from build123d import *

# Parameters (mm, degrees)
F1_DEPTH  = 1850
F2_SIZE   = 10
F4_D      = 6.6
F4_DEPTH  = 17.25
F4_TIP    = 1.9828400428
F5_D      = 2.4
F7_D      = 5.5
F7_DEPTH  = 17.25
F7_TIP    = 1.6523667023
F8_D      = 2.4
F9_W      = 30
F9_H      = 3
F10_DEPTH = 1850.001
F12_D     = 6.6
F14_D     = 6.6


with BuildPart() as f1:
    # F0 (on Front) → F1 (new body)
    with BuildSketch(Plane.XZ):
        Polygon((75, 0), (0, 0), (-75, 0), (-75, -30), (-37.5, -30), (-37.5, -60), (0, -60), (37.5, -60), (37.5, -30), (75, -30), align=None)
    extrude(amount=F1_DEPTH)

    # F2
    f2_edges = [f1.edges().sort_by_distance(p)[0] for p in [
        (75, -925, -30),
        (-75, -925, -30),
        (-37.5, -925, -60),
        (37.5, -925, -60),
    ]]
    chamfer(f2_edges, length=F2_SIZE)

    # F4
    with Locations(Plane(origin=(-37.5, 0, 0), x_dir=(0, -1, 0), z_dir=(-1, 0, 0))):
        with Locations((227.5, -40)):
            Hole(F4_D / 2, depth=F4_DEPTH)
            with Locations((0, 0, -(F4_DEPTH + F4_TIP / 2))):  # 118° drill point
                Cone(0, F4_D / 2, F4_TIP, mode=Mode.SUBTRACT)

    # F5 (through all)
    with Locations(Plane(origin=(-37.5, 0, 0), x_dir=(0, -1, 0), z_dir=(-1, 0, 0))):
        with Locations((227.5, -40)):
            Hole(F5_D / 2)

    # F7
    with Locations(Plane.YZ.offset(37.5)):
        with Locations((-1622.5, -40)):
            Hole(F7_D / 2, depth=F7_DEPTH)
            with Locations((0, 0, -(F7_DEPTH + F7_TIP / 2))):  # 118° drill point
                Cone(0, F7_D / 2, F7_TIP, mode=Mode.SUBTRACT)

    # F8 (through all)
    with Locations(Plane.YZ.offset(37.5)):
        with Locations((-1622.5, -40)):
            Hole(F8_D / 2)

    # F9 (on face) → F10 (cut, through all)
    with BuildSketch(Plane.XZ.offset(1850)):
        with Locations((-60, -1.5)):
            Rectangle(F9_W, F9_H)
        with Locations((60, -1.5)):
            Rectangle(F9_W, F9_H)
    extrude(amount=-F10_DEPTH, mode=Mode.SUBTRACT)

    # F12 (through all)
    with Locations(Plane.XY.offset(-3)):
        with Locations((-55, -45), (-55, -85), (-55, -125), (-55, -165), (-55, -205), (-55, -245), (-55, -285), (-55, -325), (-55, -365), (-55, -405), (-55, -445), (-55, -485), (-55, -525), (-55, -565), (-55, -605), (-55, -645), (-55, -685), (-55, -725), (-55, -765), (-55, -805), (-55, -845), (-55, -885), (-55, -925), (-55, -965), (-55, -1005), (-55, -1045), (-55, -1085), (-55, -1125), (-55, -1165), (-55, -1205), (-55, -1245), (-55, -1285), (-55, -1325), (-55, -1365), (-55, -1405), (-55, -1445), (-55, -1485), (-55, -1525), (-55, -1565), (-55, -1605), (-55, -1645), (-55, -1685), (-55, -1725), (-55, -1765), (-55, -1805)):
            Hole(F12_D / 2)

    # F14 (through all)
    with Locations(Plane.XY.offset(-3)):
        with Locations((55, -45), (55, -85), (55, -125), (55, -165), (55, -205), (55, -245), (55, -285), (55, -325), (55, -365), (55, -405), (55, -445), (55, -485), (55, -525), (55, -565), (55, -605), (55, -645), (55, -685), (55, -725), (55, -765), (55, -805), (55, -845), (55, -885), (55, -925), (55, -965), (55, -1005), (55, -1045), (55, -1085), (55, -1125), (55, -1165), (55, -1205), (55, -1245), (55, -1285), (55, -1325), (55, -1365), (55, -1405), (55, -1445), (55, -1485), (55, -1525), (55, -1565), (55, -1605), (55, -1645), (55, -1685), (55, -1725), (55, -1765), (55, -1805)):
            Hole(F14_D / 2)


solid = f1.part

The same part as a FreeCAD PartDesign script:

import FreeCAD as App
import Part
import Sketcher

V = App.Vector


def edges_at(feature, points):
    """Names of the edges that pass closest to the given points."""
    edges = feature.Shape.Edges
    near = lambda p: min(range(len(edges)), key=lambda i: edges[i].distToShape(Part.Vertex(*p))[0])
    return sorted({f"Edge{near(p) + 1}" for p in points})

doc = App.newDocument("Part")
params = doc.addObject("Spreadsheet::Sheet", "Params")
for row, (alias, value) in enumerate([
    ("sketch1_width", "150 mm"),
    ("sketch1_width2", "75 mm"),
    ("sketch1_height", "30 mm"),
    ("pad1_length", "1850 mm"),
    ("chamfer_size", "10 mm"),
    ("sketch2_diameter", "6.6 mm"),
    ("hole_diameter", "6.6 mm"),
    ("hole_depth", "17.25 mm"),
    ("sketch3_diameter", "2.4 mm"),
    ("hole2_diameter", "2.4 mm"),
    ("sketch4_diameter", "5.5 mm"),
    ("hole3_diameter", "5.5 mm"),
    ("hole3_depth", "17.25 mm"),
    ("sketch5_diameter", "2.4 mm"),
    ("hole4_diameter", "2.4 mm"),
    ("sketch6_width", "30 mm"),
    ("sketch6_height", "3 mm"),
    ("sketch7_diameter", "6.6 mm"),
    ("hole5_diameter", "6.6 mm"),
    ("sketch8_diameter", "6.6 mm"),
    ("hole6_diameter", "6.6 mm"),
], start=1):
    params.set(f"A{row}", alias)
    params.set(f"B{row}", "=" + value)
    params.setAlias(f"B{row}", alias)

body = doc.addObject("PartDesign::Body", "Body")

# Sketch on XZ plane
sketch1 = body.newObject("Sketcher::SketchObject", "Sketch")
sketch1.AttachmentSupport = (doc.getObject("XZ_Plane"), [""])
sketch1.MapMode = "FlatFace"
sketch1.addGeometry(Part.LineSegment(V(75, 0, 0), V(-75, 0, 0)), False)
sketch1.addGeometry(Part.LineSegment(V(-75, 0, 0), V(-75, -30, 0)), False)
sketch1.addGeometry(Part.LineSegment(V(-75, -30, 0), V(-37.5, -30, 0)), False)
sketch1.addGeometry(Part.LineSegment(V(-37.5, -30, 0), V(-37.5, -60, 0)), False)
sketch1.addGeometry(Part.LineSegment(V(-37.5, -60, 0), V(37.5, -60, 0)), False)
sketch1.addGeometry(Part.LineSegment(V(37.5, -60, 0), V(37.5, -30, 0)), False)
sketch1.addGeometry(Part.LineSegment(V(37.5, -30, 0), V(75, -30, 0)), False)
sketch1.addGeometry(Part.LineSegment(V(75, -30, 0), V(75, 0, 0)), False)
sketch1.addConstraint(Sketcher.Constraint("Coincident", 0, 2, 1, 1))
sketch1.addConstraint(Sketcher.Constraint("Coincident", 1, 2, 2, 1))
sketch1.addConstraint(Sketcher.Constraint("Coincident", 2, 2, 3, 1))
sketch1.addConstraint(Sketcher.Constraint("Coincident", 3, 2, 4, 1))
sketch1.addConstraint(Sketcher.Constraint("Coincident", 4, 2, 5, 1))
sketch1.addConstraint(Sketcher.Constraint("Coincident", 5, 2, 6, 1))
sketch1.addConstraint(Sketcher.Constraint("Coincident", 6, 2, 7, 1))
sketch1.addConstraint(Sketcher.Constraint("Coincident", 7, 2, 0, 1))
sketch1.addConstraint(Sketcher.Constraint("Horizontal", 0))
sketch1.addConstraint(Sketcher.Constraint("Vertical", 1))
sketch1.addConstraint(Sketcher.Constraint("Horizontal", 2))
sketch1.addConstraint(Sketcher.Constraint("Vertical", 3))
sketch1.addConstraint(Sketcher.Constraint("Horizontal", 4))
sketch1.addConstraint(Sketcher.Constraint("Vertical", 5))
sketch1.addConstraint(Sketcher.Constraint("Horizontal", 6))
sketch1.addConstraint(Sketcher.Constraint("Vertical", 7))
sketch1.addConstraint(Sketcher.Constraint("Symmetric", 0, 2, 7, 2, -1, 1))
sketch1.addConstraint(Sketcher.Constraint("Symmetric", 2, 2, 5, 2, -2))
sketch1.addConstraint(Sketcher.Constraint("Equal", 1, 3))
sketch1.addConstraint(Sketcher.Constraint("DistanceX", 0, 2, 0, 1, 150.0))
sketch1.addConstraint(Sketcher.Constraint("DistanceX", 4, 1, 4, 2, 75.0))
sketch1.addConstraint(Sketcher.Constraint("DistanceY", 1, 2, 1, 1, 30.0))
sketch1.setExpression("Constraints[19]", "Params.sketch1_width")
sketch1.setExpression("Constraints[20]", "Params.sketch1_width2")
sketch1.setExpression("Constraints[21]", "Params.sketch1_height")
pad1 = body.newObject("PartDesign::Pad", "Pad")
pad1.Profile = sketch1
pad1.setExpression("Length", "Params.pad1_length")
doc.recompute()

chamfer = body.newObject("PartDesign::Chamfer", "Chamfer")
chamfer.Base = (pad1, edges_at(pad1, [
    (75, -925, -30),
    (-75, -925, -30),
    (-37.5, -925, -60),
    (37.5, -925, -60),
]))
chamfer.setExpression("Size", "Params.chamfer_size")

# Sketch on YZ plane
sketch2 = body.newObject("Sketcher::SketchObject", "Sketch001")
sketch2.AttachmentSupport = (doc.getObject("YZ_Plane"), [""])
sketch2.MapMode = "FlatFace"
sketch2.AttachmentOffset = App.Placement(V(0, 0, -37.5), App.Rotation())
sketch2.addGeometry(Part.Circle(V(-227.5, -40, 0), V(0, 0, 1), 3.3), False)
sketch2.addConstraint(Sketcher.Constraint("Diameter", 0, 6.6))
sketch2.addConstraint(Sketcher.Constraint("DistanceY", 0, 3, -1, 1, 40.0))
sketch2.addConstraint(Sketcher.Constraint("DistanceX", 0, 3, -1, 1, 227.5))
sketch2.setExpression("Constraints[0]", "Params.sketch2_diameter")
doc.recompute()
hole = body.newObject("PartDesign::Hole", "Hole")
hole.Profile = sketch2
hole.ThreadType = "None"
hole.setExpression("Diameter", "Params.hole_diameter")
hole.DepthType = "Dimension"
hole.setExpression("Depth", "Params.hole_depth")
hole.DrillPoint = "Angled"
hole.DrillPointAngle = 118
hole.Reversed = True

# Sketch on YZ plane
sketch3 = body.newObject("Sketcher::SketchObject", "Sketch002")
sketch3.AttachmentSupport = (doc.getObject("YZ_Plane"), [""])
sketch3.MapMode = "FlatFace"
sketch3.AttachmentOffset = App.Placement(V(0, 0, -37.5), App.Rotation())
sketch3.addGeometry(Part.Circle(V(-227.5, -40, 0), V(0, 0, 1), 1.2), False)
sketch3.addConstraint(Sketcher.Constraint("Diameter", 0, 2.4))
sketch3.addConstraint(Sketcher.Constraint("DistanceY", 0, 3, -1, 1, 40.0))
sketch3.addConstraint(Sketcher.Constraint("DistanceX", 0, 3, -1, 1, 227.5))
sketch3.setExpression("Constraints[0]", "Params.sketch3_diameter")
doc.recompute()
hole2 = body.newObject("PartDesign::Hole", "Hole001")
hole2.Profile = sketch3
hole2.ThreadType = "None"
hole2.setExpression("Diameter", "Params.hole2_diameter")
hole2.DepthType = "ThroughAll"
hole2.Reversed = True

# Sketch on YZ plane
sketch4 = body.newObject("Sketcher::SketchObject", "Sketch003")
sketch4.AttachmentSupport = (doc.getObject("YZ_Plane"), [""])
sketch4.MapMode = "FlatFace"
sketch4.AttachmentOffset = App.Placement(V(0, 0, 37.5), App.Rotation())
sketch4.addGeometry(Part.Circle(V(-1622.5, -40, 0), V(0, 0, 1), 2.75), False)
sketch4.addConstraint(Sketcher.Constraint("Diameter", 0, 5.5))
sketch4.addConstraint(Sketcher.Constraint("DistanceY", 0, 3, -1, 1, 40.0))
sketch4.addConstraint(Sketcher.Constraint("DistanceX", 0, 3, -1, 1, 1622.5))
sketch4.setExpression("Constraints[0]", "Params.sketch4_diameter")
doc.recompute()
hole3 = body.newObject("PartDesign::Hole", "Hole002")
hole3.Profile = sketch4
hole3.ThreadType = "None"
hole3.setExpression("Diameter", "Params.hole3_diameter")
hole3.DepthType = "Dimension"
hole3.setExpression("Depth", "Params.hole3_depth")
hole3.DrillPoint = "Angled"
hole3.DrillPointAngle = 118

# Sketch on YZ plane
sketch5 = body.newObject("Sketcher::SketchObject", "Sketch004")
sketch5.AttachmentSupport = (doc.getObject("YZ_Plane"), [""])
sketch5.MapMode = "FlatFace"
sketch5.AttachmentOffset = App.Placement(V(0, 0, 37.5), App.Rotation())
sketch5.addGeometry(Part.Circle(V(-1622.5, -40, 0), V(0, 0, 1), 1.2), False)
sketch5.addConstraint(Sketcher.Constraint("Diameter", 0, 2.4))
sketch5.addConstraint(Sketcher.Constraint("DistanceY", 0, 3, -1, 1, 40.0))
sketch5.addConstraint(Sketcher.Constraint("DistanceX", 0, 3, -1, 1, 1622.5))
sketch5.setExpression("Constraints[0]", "Params.sketch5_diameter")
doc.recompute()
hole4 = body.newObject("PartDesign::Hole", "Hole003")
hole4.Profile = sketch5
hole4.ThreadType = "None"
hole4.setExpression("Diameter", "Params.hole4_diameter")
hole4.DepthType = "ThroughAll"

# Sketch on XZ plane
sketch6 = body.newObject("Sketcher::SketchObject", "Sketch005")
sketch6.AttachmentSupport = (doc.getObject("XZ_Plane"), [""])
sketch6.MapMode = "FlatFace"
sketch6.AttachmentOffset = App.Placement(V(0, 0, 1850), App.Rotation())
sketch6.addGeometry(Part.LineSegment(V(-75, 0, 0), V(-75, -3, 0)), False)
sketch6.addGeometry(Part.LineSegment(V(-75, -3, 0), V(-45, -3, 0)), False)
sketch6.addGeometry(Part.LineSegment(V(-45, -3, 0), V(-45, 0, 0)), False)
sketch6.addGeometry(Part.LineSegment(V(-45, 0, 0), V(-75, 0, 0)), False)
sketch6.addGeometry(Part.LineSegment(V(45, 0, 0), V(45, -3, 0)), False)
sketch6.addGeometry(Part.LineSegment(V(45, -3, 0), V(75, -3, 0)), False)
sketch6.addGeometry(Part.LineSegment(V(75, -3, 0), V(75, 0, 0)), False)
sketch6.addGeometry(Part.LineSegment(V(75, 0, 0), V(45, 0, 0)), False)
sketch6.addConstraint(Sketcher.Constraint("Coincident", 0, 2, 1, 1))
sketch6.addConstraint(Sketcher.Constraint("Coincident", 1, 2, 2, 1))
sketch6.addConstraint(Sketcher.Constraint("Coincident", 2, 2, 3, 1))
sketch6.addConstraint(Sketcher.Constraint("Coincident", 3, 2, 0, 1))
sketch6.addConstraint(Sketcher.Constraint("Coincident", 4, 2, 5, 1))
sketch6.addConstraint(Sketcher.Constraint("Coincident", 5, 2, 6, 1))
sketch6.addConstraint(Sketcher.Constraint("Coincident", 6, 2, 7, 1))
sketch6.addConstraint(Sketcher.Constraint("Coincident", 7, 2, 4, 1))
sketch6.addConstraint(Sketcher.Constraint("Vertical", 0))
sketch6.addConstraint(Sketcher.Constraint("Horizontal", 1))
sketch6.addConstraint(Sketcher.Constraint("Vertical", 2))
sketch6.addConstraint(Sketcher.Constraint("Horizontal", 3))
sketch6.addConstraint(Sketcher.Constraint("Vertical", 4))
sketch6.addConstraint(Sketcher.Constraint("Horizontal", 5))
sketch6.addConstraint(Sketcher.Constraint("Vertical", 6))
sketch6.addConstraint(Sketcher.Constraint("Horizontal", 7))
sketch6.addConstraint(Sketcher.Constraint("Symmetric", 3, 2, 6, 2, -1, 1))
sketch6.addConstraint(Sketcher.Constraint("Symmetric", 1, 2, 4, 2, -2))
sketch6.addConstraint(Sketcher.Constraint("PointOnObject", 2, 2, -1))
sketch6.addConstraint(Sketcher.Constraint("DistanceX", 1, 1, 1, 2, 30.0))
sketch6.addConstraint(Sketcher.Constraint("DistanceY", 0, 2, 0, 1, 3.0))
sketch6.addConstraint(Sketcher.Constraint("DistanceX", 0, 2, -1, 1, 75.0))
sketch6.setExpression("Constraints[19]", "Params.sketch6_width")
sketch6.setExpression("Constraints[20]", "Params.sketch6_height")
pocket1 = body.newObject("PartDesign::Pocket", "Pocket")
pocket1.Profile = sketch6
pocket1.Type = "ThroughAll"

# Sketch on XY plane
sketch7 = body.newObject("Sketcher::SketchObject", "Sketch006")
sketch7.AttachmentSupport = (doc.getObject("XY_Plane"), [""])
sketch7.MapMode = "FlatFace"
sketch7.AttachmentOffset = App.Placement(V(0, 0, -3), App.Rotation())
sketch7.addGeometry(Part.Circle(V(-55, -45, 0), V(0, 0, 1), 3.3), False)
sketch7.addGeometry(Part.Circle(V(-55, -85, 0), V(0, 0, 1), 3.3), False)
sketch7.addGeometry(Part.Circle(V(-55, -125, 0), V(0, 0, 1), 3.3), False)
sketch7.addGeometry(Part.Circle(V(-55, -165, 0), V(0, 0, 1), 3.3), False)
sketch7.addGeometry(Part.Circle(V(-55, -205, 0), V(0, 0, 1), 3.3), False)
sketch7.addGeometry(Part.Circle(V(-55, -245, 0), V(0, 0, 1), 3.3), False)
sketch7.addGeometry(Part.Circle(V(-55, -285, 0), V(0, 0, 1), 3.3), False)
sketch7.addGeometry(Part.Circle(V(-55, -325, 0), V(0, 0, 1), 3.3), False)
sketch7.addGeometry(Part.Circle(V(-55, -365, 0), V(0, 0, 1), 3.3), False)
sketch7.addGeometry(Part.Circle(V(-55, -405, 0), V(0, 0, 1), 3.3), False)
sketch7.addGeometry(Part.Circle(V(-55, -445, 0), V(0, 0, 1), 3.3), False)
sketch7.addGeometry(Part.Circle(V(-55, -485, 0), V(0, 0, 1), 3.3), False)
sketch7.addGeometry(Part.Circle(V(-55, -525, 0), V(0, 0, 1), 3.3), False)
sketch7.addGeometry(Part.Circle(V(-55, -565, 0), V(0, 0, 1), 3.3), False)
sketch7.addGeometry(Part.Circle(V(-55, -605, 0), V(0, 0, 1), 3.3), False)
sketch7.addGeometry(Part.Circle(V(-55, -645, 0), V(0, 0, 1), 3.3), False)
sketch7.addGeometry(Part.Circle(V(-55, -685, 0), V(0, 0, 1), 3.3), False)
sketch7.addGeometry(Part.Circle(V(-55, -725, 0), V(0, 0, 1), 3.3), False)
sketch7.addGeometry(Part.Circle(V(-55, -765, 0), V(0, 0, 1), 3.3), False)
sketch7.addGeometry(Part.Circle(V(-55, -805, 0), V(0, 0, 1), 3.3), False)
sketch7.addGeometry(Part.Circle(V(-55, -845, 0), V(0, 0, 1), 3.3), False)
sketch7.addGeometry(Part.Circle(V(-55, -885, 0), V(0, 0, 1), 3.3), False)
sketch7.addGeometry(Part.Circle(V(-55, -925, 0), V(0, 0, 1), 3.3), False)
sketch7.addGeometry(Part.Circle(V(-55, -965, 0), V(0, 0, 1), 3.3), False)
sketch7.addGeometry(Part.Circle(V(-55, -1005, 0), V(0, 0, 1), 3.3), False)
sketch7.addGeometry(Part.Circle(V(-55, -1045, 0), V(0, 0, 1), 3.3), False)
sketch7.addGeometry(Part.Circle(V(-55, -1085, 0), V(0, 0, 1), 3.3), False)
sketch7.addGeometry(Part.Circle(V(-55, -1125, 0), V(0, 0, 1), 3.3), False)
sketch7.addGeometry(Part.Circle(V(-55, -1165, 0), V(0, 0, 1), 3.3), False)
sketch7.addGeometry(Part.Circle(V(-55, -1205, 0), V(0, 0, 1), 3.3), False)
sketch7.addGeometry(Part.Circle(V(-55, -1245, 0), V(0, 0, 1), 3.3), False)
sketch7.addGeometry(Part.Circle(V(-55, -1285, 0), V(0, 0, 1), 3.3), False)
sketch7.addGeometry(Part.Circle(V(-55, -1325, 0), V(0, 0, 1), 3.3), False)
sketch7.addGeometry(Part.Circle(V(-55, -1365, 0), V(0, 0, 1), 3.3), False)
sketch7.addGeometry(Part.Circle(V(-55, -1405, 0), V(0, 0, 1), 3.3), False)
sketch7.addGeometry(Part.Circle(V(-55, -1445, 0), V(0, 0, 1), 3.3), False)
sketch7.addGeometry(Part.Circle(V(-55, -1485, 0), V(0, 0, 1), 3.3), False)
sketch7.addGeometry(Part.Circle(V(-55, -1525, 0), V(0, 0, 1), 3.3), False)
sketch7.addGeometry(Part.Circle(V(-55, -1565, 0), V(0, 0, 1), 3.3), False)
sketch7.addGeometry(Part.Circle(V(-55, -1605, 0), V(0, 0, 1), 3.3), False)
sketch7.addGeometry(Part.Circle(V(-55, -1645, 0), V(0, 0, 1), 3.3), False)
sketch7.addGeometry(Part.Circle(V(-55, -1685, 0), V(0, 0, 1), 3.3), False)
sketch7.addGeometry(Part.Circle(V(-55, -1725, 0), V(0, 0, 1), 3.3), False)
sketch7.addGeometry(Part.Circle(V(-55, -1765, 0), V(0, 0, 1), 3.3), False)
sketch7.addGeometry(Part.Circle(V(-55, -1805, 0), V(0, 0, 1), 3.3), False)
sketch7.addConstraint(Sketcher.Constraint("Equal", 0, 1))
sketch7.addConstraint(Sketcher.Constraint("Equal", 1, 2))
sketch7.addConstraint(Sketcher.Constraint("Equal", 2, 3))
sketch7.addConstraint(Sketcher.Constraint("Equal", 3, 4))
sketch7.addConstraint(Sketcher.Constraint("Equal", 4, 5))
sketch7.addConstraint(Sketcher.Constraint("Equal", 5, 6))
sketch7.addConstraint(Sketcher.Constraint("Equal", 6, 7))
sketch7.addConstraint(Sketcher.Constraint("Equal", 7, 8))
sketch7.addConstraint(Sketcher.Constraint("Equal", 8, 9))
sketch7.addConstraint(Sketcher.Constraint("Equal", 9, 10))
sketch7.addConstraint(Sketcher.Constraint("Equal", 10, 11))
sketch7.addConstraint(Sketcher.Constraint("Equal", 11, 12))
sketch7.addConstraint(Sketcher.Constraint("Equal", 12, 13))
sketch7.addConstraint(Sketcher.Constraint("Equal", 13, 14))
sketch7.addConstraint(Sketcher.Constraint("Equal", 14, 15))
sketch7.addConstraint(Sketcher.Constraint("Equal", 15, 16))
sketch7.addConstraint(Sketcher.Constraint("Equal", 16, 17))
sketch7.addConstraint(Sketcher.Constraint("Equal", 17, 18))
sketch7.addConstraint(Sketcher.Constraint("Equal", 18, 19))
sketch7.addConstraint(Sketcher.Constraint("Equal", 19, 20))
sketch7.addConstraint(Sketcher.Constraint("Equal", 20, 21))
sketch7.addConstraint(Sketcher.Constraint("Equal", 21, 22))
sketch7.addConstraint(Sketcher.Constraint("Equal", 22, 23))
sketch7.addConstraint(Sketcher.Constraint("Equal", 23, 24))
sketch7.addConstraint(Sketcher.Constraint("Equal", 24, 25))
sketch7.addConstraint(Sketcher.Constraint("Equal", 25, 26))
sketch7.addConstraint(Sketcher.Constraint("Equal", 26, 27))
sketch7.addConstraint(Sketcher.Constraint("Equal", 27, 28))
sketch7.addConstraint(Sketcher.Constraint("Equal", 28, 29))
sketch7.addConstraint(Sketcher.Constraint("Equal", 29, 30))
sketch7.addConstraint(Sketcher.Constraint("Equal", 30, 31))
sketch7.addConstraint(Sketcher.Constraint("Equal", 31, 32))
sketch7.addConstraint(Sketcher.Constraint("Equal", 32, 33))
sketch7.addConstraint(Sketcher.Constraint("Equal", 33, 34))
sketch7.addConstraint(Sketcher.Constraint("Equal", 34, 35))
sketch7.addConstraint(Sketcher.Constraint("Equal", 35, 36))
sketch7.addConstraint(Sketcher.Constraint("Equal", 36, 37))
sketch7.addConstraint(Sketcher.Constraint("Equal", 37, 38))
sketch7.addConstraint(Sketcher.Constraint("Equal", 38, 39))
sketch7.addConstraint(Sketcher.Constraint("Equal", 39, 40))
sketch7.addConstraint(Sketcher.Constraint("Equal", 40, 41))
sketch7.addConstraint(Sketcher.Constraint("Equal", 41, 42))
sketch7.addConstraint(Sketcher.Constraint("Equal", 42, 43))
sketch7.addConstraint(Sketcher.Constraint("Equal", 43, 44))
sketch7.addConstraint(Sketcher.Constraint("Vertical", 0, 3, 1, 3))
sketch7.addConstraint(Sketcher.Constraint("Vertical", 1, 3, 2, 3))
sketch7.addConstraint(Sketcher.Constraint("Vertical", 2, 3, 3, 3))
sketch7.addConstraint(Sketcher.Constraint("Vertical", 3, 3, 4, 3))
sketch7.addConstraint(Sketcher.Constraint("Vertical", 4, 3, 5, 3))
sketch7.addConstraint(Sketcher.Constraint("Vertical", 5, 3, 6, 3))
sketch7.addConstraint(Sketcher.Constraint("Vertical", 6, 3, 7, 3))
sketch7.addConstraint(Sketcher.Constraint("Vertical", 7, 3, 8, 3))
sketch7.addConstraint(Sketcher.Constraint("Vertical", 8, 3, 9, 3))
sketch7.addConstraint(Sketcher.Constraint("Vertical", 9, 3, 10, 3))
sketch7.addConstraint(Sketcher.Constraint("Vertical", 10, 3, 11, 3))
sketch7.addConstraint(Sketcher.Constraint("Vertical", 11, 3, 12, 3))
sketch7.addConstraint(Sketcher.Constraint("Vertical", 12, 3, 13, 3))
sketch7.addConstraint(Sketcher.Constraint("Vertical", 13, 3, 14, 3))
sketch7.addConstraint(Sketcher.Constraint("Vertical", 14, 3, 15, 3))
sketch7.addConstraint(Sketcher.Constraint("Vertical", 15, 3, 16, 3))
sketch7.addConstraint(Sketcher.Constraint("Vertical", 16, 3, 17, 3))
sketch7.addConstraint(Sketcher.Constraint("Vertical", 17, 3, 18, 3))
sketch7.addConstraint(Sketcher.Constraint("Vertical", 18, 3, 19, 3))
sketch7.addConstraint(Sketcher.Constraint("Vertical", 19, 3, 20, 3))
sketch7.addConstraint(Sketcher.Constraint("Vertical", 20, 3, 21, 3))
sketch7.addConstraint(Sketcher.Constraint("Vertical", 21, 3, 22, 3))
sketch7.addConstraint(Sketcher.Constraint("Vertical", 22, 3, 23, 3))
sketch7.addConstraint(Sketcher.Constraint("Vertical", 23, 3, 24, 3))
sketch7.addConstraint(Sketcher.Constraint("Vertical", 24, 3, 25, 3))
sketch7.addConstraint(Sketcher.Constraint("Vertical", 25, 3, 26, 3))
sketch7.addConstraint(Sketcher.Constraint("Vertical", 26, 3, 27, 3))
sketch7.addConstraint(Sketcher.Constraint("Vertical", 27, 3, 28, 3))
sketch7.addConstraint(Sketcher.Constraint("Vertical", 28, 3, 29, 3))
sketch7.addConstraint(Sketcher.Constraint("Vertical", 29, 3, 30, 3))
sketch7.addConstraint(Sketcher.Constraint("Vertical", 30, 3, 31, 3))
sketch7.addConstraint(Sketcher.Constraint("Vertical", 31, 3, 32, 3))
sketch7.addConstraint(Sketcher.Constraint("Vertical", 32, 3, 33, 3))
sketch7.addConstraint(Sketcher.Constraint("Vertical", 33, 3, 34, 3))
sketch7.addConstraint(Sketcher.Constraint("Vertical", 34, 3, 35, 3))
sketch7.addConstraint(Sketcher.Constraint("Vertical", 35, 3, 36, 3))
sketch7.addConstraint(Sketcher.Constraint("Vertical", 36, 3, 37, 3))
sketch7.addConstraint(Sketcher.Constraint("Vertical", 37, 3, 38, 3))
sketch7.addConstraint(Sketcher.Constraint("Vertical", 38, 3, 39, 3))
sketch7.addConstraint(Sketcher.Constraint("Vertical", 39, 3, 40, 3))
sketch7.addConstraint(Sketcher.Constraint("Vertical", 40, 3, 41, 3))
sketch7.addConstraint(Sketcher.Constraint("Vertical", 41, 3, 42, 3))
sketch7.addConstraint(Sketcher.Constraint("Vertical", 42, 3, 43, 3))
sketch7.addConstraint(Sketcher.Constraint("Vertical", 43, 3, 44, 3))
sketch7.addConstraint(Sketcher.Constraint("Diameter", 0, 6.6))
sketch7.addConstraint(Sketcher.Constraint("DistanceX", 0, 3, -1, 1, 55.0))
sketch7.addConstraint(Sketcher.Constraint("DistanceY", 0, 3, -1, 1, 45.0))
sketch7.addConstraint(Sketcher.Constraint("DistanceY", 1, 3, -1, 1, 85.0))
sketch7.addConstraint(Sketcher.Constraint("DistanceY", 2, 3, -1, 1, 125.0))
sketch7.addConstraint(Sketcher.Constraint("DistanceY", 3, 3, -1, 1, 165.0))
sketch7.addConstraint(Sketcher.Constraint("DistanceY", 4, 3, -1, 1, 205.0))
sketch7.addConstraint(Sketcher.Constraint("DistanceY", 5, 3, -1, 1, 245.0))
sketch7.addConstraint(Sketcher.Constraint("DistanceY", 6, 3, -1, 1, 285.0))
sketch7.addConstraint(Sketcher.Constraint("DistanceY", 7, 3, -1, 1, 325.0))
sketch7.addConstraint(Sketcher.Constraint("DistanceY", 8, 3, -1, 1, 365.0))
sketch7.addConstraint(Sketcher.Constraint("DistanceY", 9, 3, -1, 1, 405.0))
sketch7.addConstraint(Sketcher.Constraint("DistanceY", 10, 3, -1, 1, 445.0))
sketch7.addConstraint(Sketcher.Constraint("DistanceY", 11, 3, -1, 1, 485.0))
sketch7.addConstraint(Sketcher.Constraint("DistanceY", 12, 3, -1, 1, 525.0))
sketch7.addConstraint(Sketcher.Constraint("DistanceY", 13, 3, -1, 1, 565.0))
sketch7.addConstraint(Sketcher.Constraint("DistanceY", 14, 3, -1, 1, 605.0))
sketch7.addConstraint(Sketcher.Constraint("DistanceY", 15, 3, -1, 1, 645.0))
sketch7.addConstraint(Sketcher.Constraint("DistanceY", 16, 3, -1, 1, 685.0))
sketch7.addConstraint(Sketcher.Constraint("DistanceY", 17, 3, -1, 1, 725.0))
sketch7.addConstraint(Sketcher.Constraint("DistanceY", 18, 3, -1, 1, 765.0))
sketch7.addConstraint(Sketcher.Constraint("DistanceY", 19, 3, -1, 1, 805.0))
sketch7.addConstraint(Sketcher.Constraint("DistanceY", 20, 3, -1, 1, 845.0))
sketch7.addConstraint(Sketcher.Constraint("DistanceY", 21, 3, -1, 1, 885.0))
sketch7.addConstraint(Sketcher.Constraint("DistanceY", 22, 3, -1, 1, 925.0))
sketch7.addConstraint(Sketcher.Constraint("DistanceY", 23, 3, -1, 1, 965.0))
sketch7.addConstraint(Sketcher.Constraint("DistanceY", 24, 3, -1, 1, 1005.0))
sketch7.addConstraint(Sketcher.Constraint("DistanceY", 25, 3, -1, 1, 1045.0))
sketch7.addConstraint(Sketcher.Constraint("DistanceY", 26, 3, -1, 1, 1085.0))
sketch7.addConstraint(Sketcher.Constraint("DistanceY", 27, 3, -1, 1, 1125.0))
sketch7.addConstraint(Sketcher.Constraint("DistanceY", 28, 3, -1, 1, 1165.0))
sketch7.addConstraint(Sketcher.Constraint("DistanceY", 29, 3, -1, 1, 1205.0))
sketch7.addConstraint(Sketcher.Constraint("DistanceY", 30, 3, -1, 1, 1245.0))
sketch7.addConstraint(Sketcher.Constraint("DistanceY", 31, 3, -1, 1, 1285.0))
sketch7.addConstraint(Sketcher.Constraint("DistanceY", 32, 3, -1, 1, 1325.0))
sketch7.addConstraint(Sketcher.Constraint("DistanceY", 33, 3, -1, 1, 1365.0))
sketch7.addConstraint(Sketcher.Constraint("DistanceY", 34, 3, -1, 1, 1405.0))
sketch7.addConstraint(Sketcher.Constraint("DistanceY", 35, 3, -1, 1, 1445.0))
sketch7.addConstraint(Sketcher.Constraint("DistanceY", 36, 3, -1, 1, 1485.0))
sketch7.addConstraint(Sketcher.Constraint("DistanceY", 37, 3, -1, 1, 1525.0))
sketch7.addConstraint(Sketcher.Constraint("DistanceY", 38, 3, -1, 1, 1565.0))
sketch7.addConstraint(Sketcher.Constraint("DistanceY", 39, 3, -1, 1, 1605.0))
sketch7.addConstraint(Sketcher.Constraint("DistanceY", 40, 3, -1, 1, 1645.0))
sketch7.addConstraint(Sketcher.Constraint("DistanceY", 41, 3, -1, 1, 1685.0))
sketch7.addConstraint(Sketcher.Constraint("DistanceY", 42, 3, -1, 1, 1725.0))
sketch7.addConstraint(Sketcher.Constraint("DistanceY", 43, 3, -1, 1, 1765.0))
sketch7.addConstraint(Sketcher.Constraint("DistanceY", 44, 3, -1, 1, 1805.0))
sketch7.setExpression("Constraints[88]", "Params.sketch7_diameter")
doc.recompute()
hole5 = body.newObject("PartDesign::Hole", "Hole004")
hole5.Profile = sketch7
hole5.ThreadType = "None"
hole5.setExpression("Diameter", "Params.hole5_diameter")
hole5.DepthType = "ThroughAll"

# Sketch on XY plane
sketch8 = body.newObject("Sketcher::SketchObject", "Sketch007")
sketch8.AttachmentSupport = (doc.getObject("XY_Plane"), [""])
sketch8.MapMode = "FlatFace"
sketch8.AttachmentOffset = App.Placement(V(0, 0, -3), App.Rotation())
sketch8.addGeometry(Part.Circle(V(55, -45, 0), V(0, 0, 1), 3.3), False)
sketch8.addGeometry(Part.Circle(V(55, -85, 0), V(0, 0, 1), 3.3), False)
sketch8.addGeometry(Part.Circle(V(55, -125, 0), V(0, 0, 1), 3.3), False)
sketch8.addGeometry(Part.Circle(V(55, -165, 0), V(0, 0, 1), 3.3), False)
sketch8.addGeometry(Part.Circle(V(55, -205, 0), V(0, 0, 1), 3.3), False)
sketch8.addGeometry(Part.Circle(V(55, -245, 0), V(0, 0, 1), 3.3), False)
sketch8.addGeometry(Part.Circle(V(55, -285, 0), V(0, 0, 1), 3.3), False)
sketch8.addGeometry(Part.Circle(V(55, -325, 0), V(0, 0, 1), 3.3), False)
sketch8.addGeometry(Part.Circle(V(55, -365, 0), V(0, 0, 1), 3.3), False)
sketch8.addGeometry(Part.Circle(V(55, -405, 0), V(0, 0, 1), 3.3), False)
sketch8.addGeometry(Part.Circle(V(55, -445, 0), V(0, 0, 1), 3.3), False)
sketch8.addGeometry(Part.Circle(V(55, -485, 0), V(0, 0, 1), 3.3), False)
sketch8.addGeometry(Part.Circle(V(55, -525, 0), V(0, 0, 1), 3.3), False)
sketch8.addGeometry(Part.Circle(V(55, -565, 0), V(0, 0, 1), 3.3), False)
sketch8.addGeometry(Part.Circle(V(55, -605, 0), V(0, 0, 1), 3.3), False)
sketch8.addGeometry(Part.Circle(V(55, -645, 0), V(0, 0, 1), 3.3), False)
sketch8.addGeometry(Part.Circle(V(55, -685, 0), V(0, 0, 1), 3.3), False)
sketch8.addGeometry(Part.Circle(V(55, -725, 0), V(0, 0, 1), 3.3), False)
sketch8.addGeometry(Part.Circle(V(55, -765, 0), V(0, 0, 1), 3.3), False)
sketch8.addGeometry(Part.Circle(V(55, -805, 0), V(0, 0, 1), 3.3), False)
sketch8.addGeometry(Part.Circle(V(55, -845, 0), V(0, 0, 1), 3.3), False)
sketch8.addGeometry(Part.Circle(V(55, -885, 0), V(0, 0, 1), 3.3), False)
sketch8.addGeometry(Part.Circle(V(55, -925, 0), V(0, 0, 1), 3.3), False)
sketch8.addGeometry(Part.Circle(V(55, -965, 0), V(0, 0, 1), 3.3), False)
sketch8.addGeometry(Part.Circle(V(55, -1005, 0), V(0, 0, 1), 3.3), False)
sketch8.addGeometry(Part.Circle(V(55, -1045, 0), V(0, 0, 1), 3.3), False)
sketch8.addGeometry(Part.Circle(V(55, -1085, 0), V(0, 0, 1), 3.3), False)
sketch8.addGeometry(Part.Circle(V(55, -1125, 0), V(0, 0, 1), 3.3), False)
sketch8.addGeometry(Part.Circle(V(55, -1165, 0), V(0, 0, 1), 3.3), False)
sketch8.addGeometry(Part.Circle(V(55, -1205, 0), V(0, 0, 1), 3.3), False)
sketch8.addGeometry(Part.Circle(V(55, -1245, 0), V(0, 0, 1), 3.3), False)
sketch8.addGeometry(Part.Circle(V(55, -1285, 0), V(0, 0, 1), 3.3), False)
sketch8.addGeometry(Part.Circle(V(55, -1325, 0), V(0, 0, 1), 3.3), False)
sketch8.addGeometry(Part.Circle(V(55, -1365, 0), V(0, 0, 1), 3.3), False)
sketch8.addGeometry(Part.Circle(V(55, -1405, 0), V(0, 0, 1), 3.3), False)
sketch8.addGeometry(Part.Circle(V(55, -1445, 0), V(0, 0, 1), 3.3), False)
sketch8.addGeometry(Part.Circle(V(55, -1485, 0), V(0, 0, 1), 3.3), False)
sketch8.addGeometry(Part.Circle(V(55, -1525, 0), V(0, 0, 1), 3.3), False)
sketch8.addGeometry(Part.Circle(V(55, -1565, 0), V(0, 0, 1), 3.3), False)
sketch8.addGeometry(Part.Circle(V(55, -1605, 0), V(0, 0, 1), 3.3), False)
sketch8.addGeometry(Part.Circle(V(55, -1645, 0), V(0, 0, 1), 3.3), False)
sketch8.addGeometry(Part.Circle(V(55, -1685, 0), V(0, 0, 1), 3.3), False)
sketch8.addGeometry(Part.Circle(V(55, -1725, 0), V(0, 0, 1), 3.3), False)
sketch8.addGeometry(Part.Circle(V(55, -1765, 0), V(0, 0, 1), 3.3), False)
sketch8.addGeometry(Part.Circle(V(55, -1805, 0), V(0, 0, 1), 3.3), False)
sketch8.addConstraint(Sketcher.Constraint("Equal", 0, 1))
sketch8.addConstraint(Sketcher.Constraint("Equal", 1, 2))
sketch8.addConstraint(Sketcher.Constraint("Equal", 2, 3))
sketch8.addConstraint(Sketcher.Constraint("Equal", 3, 4))
sketch8.addConstraint(Sketcher.Constraint("Equal", 4, 5))
sketch8.addConstraint(Sketcher.Constraint("Equal", 5, 6))
sketch8.addConstraint(Sketcher.Constraint("Equal", 6, 7))
sketch8.addConstraint(Sketcher.Constraint("Equal", 7, 8))
sketch8.addConstraint(Sketcher.Constraint("Equal", 8, 9))
sketch8.addConstraint(Sketcher.Constraint("Equal", 9, 10))
sketch8.addConstraint(Sketcher.Constraint("Equal", 10, 11))
sketch8.addConstraint(Sketcher.Constraint("Equal", 11, 12))
sketch8.addConstraint(Sketcher.Constraint("Equal", 12, 13))
sketch8.addConstraint(Sketcher.Constraint("Equal", 13, 14))
sketch8.addConstraint(Sketcher.Constraint("Equal", 14, 15))
sketch8.addConstraint(Sketcher.Constraint("Equal", 15, 16))
sketch8.addConstraint(Sketcher.Constraint("Equal", 16, 17))
sketch8.addConstraint(Sketcher.Constraint("Equal", 17, 18))
sketch8.addConstraint(Sketcher.Constraint("Equal", 18, 19))
sketch8.addConstraint(Sketcher.Constraint("Equal", 19, 20))
sketch8.addConstraint(Sketcher.Constraint("Equal", 20, 21))
sketch8.addConstraint(Sketcher.Constraint("Equal", 21, 22))
sketch8.addConstraint(Sketcher.Constraint("Equal", 22, 23))
sketch8.addConstraint(Sketcher.Constraint("Equal", 23, 24))
sketch8.addConstraint(Sketcher.Constraint("Equal", 24, 25))
sketch8.addConstraint(Sketcher.Constraint("Equal", 25, 26))
sketch8.addConstraint(Sketcher.Constraint("Equal", 26, 27))
sketch8.addConstraint(Sketcher.Constraint("Equal", 27, 28))
sketch8.addConstraint(Sketcher.Constraint("Equal", 28, 29))
sketch8.addConstraint(Sketcher.Constraint("Equal", 29, 30))
sketch8.addConstraint(Sketcher.Constraint("Equal", 30, 31))
sketch8.addConstraint(Sketcher.Constraint("Equal", 31, 32))
sketch8.addConstraint(Sketcher.Constraint("Equal", 32, 33))
sketch8.addConstraint(Sketcher.Constraint("Equal", 33, 34))
sketch8.addConstraint(Sketcher.Constraint("Equal", 34, 35))
sketch8.addConstraint(Sketcher.Constraint("Equal", 35, 36))
sketch8.addConstraint(Sketcher.Constraint("Equal", 36, 37))
sketch8.addConstraint(Sketcher.Constraint("Equal", 37, 38))
sketch8.addConstraint(Sketcher.Constraint("Equal", 38, 39))
sketch8.addConstraint(Sketcher.Constraint("Equal", 39, 40))
sketch8.addConstraint(Sketcher.Constraint("Equal", 40, 41))
sketch8.addConstraint(Sketcher.Constraint("Equal", 41, 42))
sketch8.addConstraint(Sketcher.Constraint("Equal", 42, 43))
sketch8.addConstraint(Sketcher.Constraint("Equal", 43, 44))
sketch8.addConstraint(Sketcher.Constraint("Vertical", 0, 3, 1, 3))
sketch8.addConstraint(Sketcher.Constraint("Vertical", 1, 3, 2, 3))
sketch8.addConstraint(Sketcher.Constraint("Vertical", 2, 3, 3, 3))
sketch8.addConstraint(Sketcher.Constraint("Vertical", 3, 3, 4, 3))
sketch8.addConstraint(Sketcher.Constraint("Vertical", 4, 3, 5, 3))
sketch8.addConstraint(Sketcher.Constraint("Vertical", 5, 3, 6, 3))
sketch8.addConstraint(Sketcher.Constraint("Vertical", 6, 3, 7, 3))
sketch8.addConstraint(Sketcher.Constraint("Vertical", 7, 3, 8, 3))
sketch8.addConstraint(Sketcher.Constraint("Vertical", 8, 3, 9, 3))
sketch8.addConstraint(Sketcher.Constraint("Vertical", 9, 3, 10, 3))
sketch8.addConstraint(Sketcher.Constraint("Vertical", 10, 3, 11, 3))
sketch8.addConstraint(Sketcher.Constraint("Vertical", 11, 3, 12, 3))
sketch8.addConstraint(Sketcher.Constraint("Vertical", 12, 3, 13, 3))
sketch8.addConstraint(Sketcher.Constraint("Vertical", 13, 3, 14, 3))
sketch8.addConstraint(Sketcher.Constraint("Vertical", 14, 3, 15, 3))
sketch8.addConstraint(Sketcher.Constraint("Vertical", 15, 3, 16, 3))
sketch8.addConstraint(Sketcher.Constraint("Vertical", 16, 3, 17, 3))
sketch8.addConstraint(Sketcher.Constraint("Vertical", 17, 3, 18, 3))
sketch8.addConstraint(Sketcher.Constraint("Vertical", 18, 3, 19, 3))
sketch8.addConstraint(Sketcher.Constraint("Vertical", 19, 3, 20, 3))
sketch8.addConstraint(Sketcher.Constraint("Vertical", 20, 3, 21, 3))
sketch8.addConstraint(Sketcher.Constraint("Vertical", 21, 3, 22, 3))
sketch8.addConstraint(Sketcher.Constraint("Vertical", 22, 3, 23, 3))
sketch8.addConstraint(Sketcher.Constraint("Vertical", 23, 3, 24, 3))
sketch8.addConstraint(Sketcher.Constraint("Vertical", 24, 3, 25, 3))
sketch8.addConstraint(Sketcher.Constraint("Vertical", 25, 3, 26, 3))
sketch8.addConstraint(Sketcher.Constraint("Vertical", 26, 3, 27, 3))
sketch8.addConstraint(Sketcher.Constraint("Vertical", 27, 3, 28, 3))
sketch8.addConstraint(Sketcher.Constraint("Vertical", 28, 3, 29, 3))
sketch8.addConstraint(Sketcher.Constraint("Vertical", 29, 3, 30, 3))
sketch8.addConstraint(Sketcher.Constraint("Vertical", 30, 3, 31, 3))
sketch8.addConstraint(Sketcher.Constraint("Vertical", 31, 3, 32, 3))
sketch8.addConstraint(Sketcher.Constraint("Vertical", 32, 3, 33, 3))
sketch8.addConstraint(Sketcher.Constraint("Vertical", 33, 3, 34, 3))
sketch8.addConstraint(Sketcher.Constraint("Vertical", 34, 3, 35, 3))
sketch8.addConstraint(Sketcher.Constraint("Vertical", 35, 3, 36, 3))
sketch8.addConstraint(Sketcher.Constraint("Vertical", 36, 3, 37, 3))
sketch8.addConstraint(Sketcher.Constraint("Vertical", 37, 3, 38, 3))
sketch8.addConstraint(Sketcher.Constraint("Vertical", 38, 3, 39, 3))
sketch8.addConstraint(Sketcher.Constraint("Vertical", 39, 3, 40, 3))
sketch8.addConstraint(Sketcher.Constraint("Vertical", 40, 3, 41, 3))
sketch8.addConstraint(Sketcher.Constraint("Vertical", 41, 3, 42, 3))
sketch8.addConstraint(Sketcher.Constraint("Vertical", 42, 3, 43, 3))
sketch8.addConstraint(Sketcher.Constraint("Vertical", 43, 3, 44, 3))
sketch8.addConstraint(Sketcher.Constraint("Diameter", 0, 6.6))
sketch8.addConstraint(Sketcher.Constraint("DistanceX", -1, 1, 0, 3, 55.0))
sketch8.addConstraint(Sketcher.Constraint("DistanceY", 0, 3, -1, 1, 45.0))
sketch8.addConstraint(Sketcher.Constraint("DistanceY", 1, 3, -1, 1, 85.0))
sketch8.addConstraint(Sketcher.Constraint("DistanceY", 2, 3, -1, 1, 125.0))
sketch8.addConstraint(Sketcher.Constraint("DistanceY", 3, 3, -1, 1, 165.0))
sketch8.addConstraint(Sketcher.Constraint("DistanceY", 4, 3, -1, 1, 205.0))
sketch8.addConstraint(Sketcher.Constraint("DistanceY", 5, 3, -1, 1, 245.0))
sketch8.addConstraint(Sketcher.Constraint("DistanceY", 6, 3, -1, 1, 285.0))
sketch8.addConstraint(Sketcher.Constraint("DistanceY", 7, 3, -1, 1, 325.0))
sketch8.addConstraint(Sketcher.Constraint("DistanceY", 8, 3, -1, 1, 365.0))
sketch8.addConstraint(Sketcher.Constraint("DistanceY", 9, 3, -1, 1, 405.0))
sketch8.addConstraint(Sketcher.Constraint("DistanceY", 10, 3, -1, 1, 445.0))
sketch8.addConstraint(Sketcher.Constraint("DistanceY", 11, 3, -1, 1, 485.0))
sketch8.addConstraint(Sketcher.Constraint("DistanceY", 12, 3, -1, 1, 525.0))
sketch8.addConstraint(Sketcher.Constraint("DistanceY", 13, 3, -1, 1, 565.0))
sketch8.addConstraint(Sketcher.Constraint("DistanceY", 14, 3, -1, 1, 605.0))
sketch8.addConstraint(Sketcher.Constraint("DistanceY", 15, 3, -1, 1, 645.0))
sketch8.addConstraint(Sketcher.Constraint("DistanceY", 16, 3, -1, 1, 685.0))
sketch8.addConstraint(Sketcher.Constraint("DistanceY", 17, 3, -1, 1, 725.0))
sketch8.addConstraint(Sketcher.Constraint("DistanceY", 18, 3, -1, 1, 765.0))
sketch8.addConstraint(Sketcher.Constraint("DistanceY", 19, 3, -1, 1, 805.0))
sketch8.addConstraint(Sketcher.Constraint("DistanceY", 20, 3, -1, 1, 845.0))
sketch8.addConstraint(Sketcher.Constraint("DistanceY", 21, 3, -1, 1, 885.0))
sketch8.addConstraint(Sketcher.Constraint("DistanceY", 22, 3, -1, 1, 925.0))
sketch8.addConstraint(Sketcher.Constraint("DistanceY", 23, 3, -1, 1, 965.0))
sketch8.addConstraint(Sketcher.Constraint("DistanceY", 24, 3, -1, 1, 1005.0))
sketch8.addConstraint(Sketcher.Constraint("DistanceY", 25, 3, -1, 1, 1045.0))
sketch8.addConstraint(Sketcher.Constraint("DistanceY", 26, 3, -1, 1, 1085.0))
sketch8.addConstraint(Sketcher.Constraint("DistanceY", 27, 3, -1, 1, 1125.0))
sketch8.addConstraint(Sketcher.Constraint("DistanceY", 28, 3, -1, 1, 1165.0))
sketch8.addConstraint(Sketcher.Constraint("DistanceY", 29, 3, -1, 1, 1205.0))
sketch8.addConstraint(Sketcher.Constraint("DistanceY", 30, 3, -1, 1, 1245.0))
sketch8.addConstraint(Sketcher.Constraint("DistanceY", 31, 3, -1, 1, 1285.0))
sketch8.addConstraint(Sketcher.Constraint("DistanceY", 32, 3, -1, 1, 1325.0))
sketch8.addConstraint(Sketcher.Constraint("DistanceY", 33, 3, -1, 1, 1365.0))
sketch8.addConstraint(Sketcher.Constraint("DistanceY", 34, 3, -1, 1, 1405.0))
sketch8.addConstraint(Sketcher.Constraint("DistanceY", 35, 3, -1, 1, 1445.0))
sketch8.addConstraint(Sketcher.Constraint("DistanceY", 36, 3, -1, 1, 1485.0))
sketch8.addConstraint(Sketcher.Constraint("DistanceY", 37, 3, -1, 1, 1525.0))
sketch8.addConstraint(Sketcher.Constraint("DistanceY", 38, 3, -1, 1, 1565.0))
sketch8.addConstraint(Sketcher.Constraint("DistanceY", 39, 3, -1, 1, 1605.0))
sketch8.addConstraint(Sketcher.Constraint("DistanceY", 40, 3, -1, 1, 1645.0))
sketch8.addConstraint(Sketcher.Constraint("DistanceY", 41, 3, -1, 1, 1685.0))
sketch8.addConstraint(Sketcher.Constraint("DistanceY", 42, 3, -1, 1, 1725.0))
sketch8.addConstraint(Sketcher.Constraint("DistanceY", 43, 3, -1, 1, 1765.0))
sketch8.addConstraint(Sketcher.Constraint("DistanceY", 44, 3, -1, 1, 1805.0))
sketch8.setExpression("Constraints[88]", "Params.sketch8_diameter")
doc.recompute()
hole6 = body.newObject("PartDesign::Hole", "Hole005")
hole6.Profile = sketch8
hole6.ThreadType = "None"
hole6.setExpression("Diameter", "Params.hole6_diameter")
hole6.DepthType = "ThroughAll"

doc.recompute()
